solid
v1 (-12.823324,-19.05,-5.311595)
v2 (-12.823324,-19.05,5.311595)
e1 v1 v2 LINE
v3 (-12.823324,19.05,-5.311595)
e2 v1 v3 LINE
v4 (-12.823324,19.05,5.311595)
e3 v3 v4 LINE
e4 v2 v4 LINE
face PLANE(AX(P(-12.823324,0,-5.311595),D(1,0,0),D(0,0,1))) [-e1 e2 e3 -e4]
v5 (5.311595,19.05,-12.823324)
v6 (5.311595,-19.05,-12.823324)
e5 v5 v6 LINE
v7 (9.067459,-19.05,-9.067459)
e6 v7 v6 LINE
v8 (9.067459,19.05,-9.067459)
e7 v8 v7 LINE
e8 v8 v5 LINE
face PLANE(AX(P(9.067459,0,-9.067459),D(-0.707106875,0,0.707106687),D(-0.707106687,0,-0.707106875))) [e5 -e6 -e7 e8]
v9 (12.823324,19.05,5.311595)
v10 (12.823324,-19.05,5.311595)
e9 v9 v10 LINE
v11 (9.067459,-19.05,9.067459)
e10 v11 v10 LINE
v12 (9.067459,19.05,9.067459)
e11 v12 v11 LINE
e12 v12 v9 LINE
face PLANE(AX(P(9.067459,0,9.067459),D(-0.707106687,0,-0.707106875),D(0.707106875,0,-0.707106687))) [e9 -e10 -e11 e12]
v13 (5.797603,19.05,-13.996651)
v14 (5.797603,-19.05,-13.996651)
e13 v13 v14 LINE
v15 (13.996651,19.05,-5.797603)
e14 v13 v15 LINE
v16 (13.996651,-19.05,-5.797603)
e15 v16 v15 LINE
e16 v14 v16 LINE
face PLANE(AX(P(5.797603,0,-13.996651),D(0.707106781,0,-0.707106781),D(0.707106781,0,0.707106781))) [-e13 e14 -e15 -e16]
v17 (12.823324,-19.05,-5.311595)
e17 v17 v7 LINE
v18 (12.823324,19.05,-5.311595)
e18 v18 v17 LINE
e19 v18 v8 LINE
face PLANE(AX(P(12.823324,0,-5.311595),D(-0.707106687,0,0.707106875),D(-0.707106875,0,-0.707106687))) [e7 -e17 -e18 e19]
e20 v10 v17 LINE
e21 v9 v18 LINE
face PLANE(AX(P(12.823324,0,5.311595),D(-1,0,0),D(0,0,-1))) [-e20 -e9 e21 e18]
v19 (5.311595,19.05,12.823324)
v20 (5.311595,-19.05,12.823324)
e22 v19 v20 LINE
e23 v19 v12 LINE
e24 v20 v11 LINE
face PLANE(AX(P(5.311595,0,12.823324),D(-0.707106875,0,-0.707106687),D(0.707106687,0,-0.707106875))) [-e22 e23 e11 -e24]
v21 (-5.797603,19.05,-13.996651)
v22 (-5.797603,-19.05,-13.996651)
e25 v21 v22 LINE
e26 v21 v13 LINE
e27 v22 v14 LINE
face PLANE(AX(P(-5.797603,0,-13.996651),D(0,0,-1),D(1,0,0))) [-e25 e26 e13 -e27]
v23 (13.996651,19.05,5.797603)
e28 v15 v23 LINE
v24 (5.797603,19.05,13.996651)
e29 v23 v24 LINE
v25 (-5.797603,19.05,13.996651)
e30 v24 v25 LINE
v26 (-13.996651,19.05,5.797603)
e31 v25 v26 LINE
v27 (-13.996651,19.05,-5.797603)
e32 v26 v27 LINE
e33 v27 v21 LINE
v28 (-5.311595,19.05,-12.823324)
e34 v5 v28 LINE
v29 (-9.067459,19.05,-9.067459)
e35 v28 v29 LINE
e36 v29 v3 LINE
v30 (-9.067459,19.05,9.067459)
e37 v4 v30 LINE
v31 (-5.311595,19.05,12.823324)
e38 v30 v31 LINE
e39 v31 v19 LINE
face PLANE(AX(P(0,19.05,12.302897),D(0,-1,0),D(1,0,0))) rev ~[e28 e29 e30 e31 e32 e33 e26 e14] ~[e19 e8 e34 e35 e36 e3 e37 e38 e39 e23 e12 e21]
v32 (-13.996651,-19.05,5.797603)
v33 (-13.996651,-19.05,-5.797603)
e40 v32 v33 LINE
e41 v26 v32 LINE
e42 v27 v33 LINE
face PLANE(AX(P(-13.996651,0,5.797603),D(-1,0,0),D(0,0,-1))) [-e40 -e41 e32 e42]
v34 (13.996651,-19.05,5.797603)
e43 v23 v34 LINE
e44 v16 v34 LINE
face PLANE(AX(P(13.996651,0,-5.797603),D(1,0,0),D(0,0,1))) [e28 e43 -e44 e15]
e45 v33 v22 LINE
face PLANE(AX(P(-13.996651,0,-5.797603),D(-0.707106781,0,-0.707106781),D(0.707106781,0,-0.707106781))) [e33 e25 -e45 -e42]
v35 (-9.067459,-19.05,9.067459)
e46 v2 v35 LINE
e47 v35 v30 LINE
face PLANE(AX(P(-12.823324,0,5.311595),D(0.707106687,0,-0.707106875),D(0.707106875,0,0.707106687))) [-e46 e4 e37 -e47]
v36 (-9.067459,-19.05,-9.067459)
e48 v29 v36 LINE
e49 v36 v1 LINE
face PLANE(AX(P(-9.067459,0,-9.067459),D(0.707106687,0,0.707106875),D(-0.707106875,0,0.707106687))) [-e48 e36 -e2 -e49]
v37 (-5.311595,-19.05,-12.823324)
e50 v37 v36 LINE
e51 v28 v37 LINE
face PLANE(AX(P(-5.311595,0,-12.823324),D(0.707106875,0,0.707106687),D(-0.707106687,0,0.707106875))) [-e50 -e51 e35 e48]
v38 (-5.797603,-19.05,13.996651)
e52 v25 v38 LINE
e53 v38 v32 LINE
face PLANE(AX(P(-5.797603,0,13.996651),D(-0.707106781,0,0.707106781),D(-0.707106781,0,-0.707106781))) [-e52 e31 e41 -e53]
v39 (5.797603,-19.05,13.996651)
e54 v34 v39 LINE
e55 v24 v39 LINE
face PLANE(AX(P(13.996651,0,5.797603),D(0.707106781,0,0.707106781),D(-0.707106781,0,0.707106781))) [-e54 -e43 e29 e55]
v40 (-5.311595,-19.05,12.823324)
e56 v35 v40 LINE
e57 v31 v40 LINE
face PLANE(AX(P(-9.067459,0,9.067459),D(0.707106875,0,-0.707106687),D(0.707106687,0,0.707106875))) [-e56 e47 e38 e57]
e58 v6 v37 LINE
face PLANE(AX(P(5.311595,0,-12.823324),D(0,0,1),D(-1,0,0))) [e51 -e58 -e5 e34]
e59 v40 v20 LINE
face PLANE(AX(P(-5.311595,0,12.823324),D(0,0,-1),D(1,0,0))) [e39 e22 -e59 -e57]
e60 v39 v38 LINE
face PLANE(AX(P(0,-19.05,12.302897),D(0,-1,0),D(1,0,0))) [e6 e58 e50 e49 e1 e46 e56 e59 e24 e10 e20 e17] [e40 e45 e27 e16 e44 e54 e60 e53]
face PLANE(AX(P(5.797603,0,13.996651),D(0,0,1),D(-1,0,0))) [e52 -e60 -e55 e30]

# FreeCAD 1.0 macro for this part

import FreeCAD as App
import Part
import Sketcher

V = App.Vector

doc = App.newDocument("Part")
params = doc.addObject("Spreadsheet::Sheet", "Params")
for row, (alias, value) in enumerate([
    ("pad1_length", "1.5 in"),
], start=1):
    params.set(f"A{row}", alias)
    params.set(f"B{row}", "=" + value)
    params.setAlias(f"B{row}", alias)

body = doc.addObject("PartDesign::Body", "Body")

# Sketch on XZ plane
sketch1 = body.newObject("Sketcher::SketchObject", "Sketch")
sketch1.AttachmentSupport = (doc.getObject("XZ_Plane"), [""])
sketch1.MapMode = "FlatFace"
sketch1.addGeometry([
    Part.LineSegment(V(13.996651, -5.797603, 0), V(13.996651, 5.797603, 0)),  # 0
    Part.LineSegment(V(13.996651, 5.797603, 0), V(5.797603, 13.996651, 0)),  # 1
    Part.LineSegment(V(5.797603, 13.996651, 0), V(-5.797603, 13.996651, 0)),  # 2
    Part.LineSegment(V(-5.797603, 13.996651, 0), V(-13.996651, 5.797603, 0)),  # 3
    Part.LineSegment(V(-13.996651, 5.797603, 0), V(-13.996651, -5.797603, 0)),  # 4
    Part.LineSegment(V(-13.996651, -5.797603, 0), V(-5.797603, -13.996651, 0)),  # 5
    Part.LineSegment(V(-5.797603, -13.996651, 0), V(5.797603, -13.996651, 0)),  # 6
    Part.LineSegment(V(5.797603, -13.996651, 0), V(13.996651, -5.797603, 0)),  # 7
    Part.LineSegment(V(-9.067459, 9.067459, 0), V(-5.311595, 12.823324, 0)),  # 8
    Part.LineSegment(V(-5.311595, 12.823324, 0), V(5.311595, 12.823324, 0)),  # 9
    Part.LineSegment(V(5.311595, 12.823324, 0), V(9.067459, 9.067459, 0)),  # 10
    Part.LineSegment(V(9.067459, 9.067459, 0), V(12.823324, 5.311595, 0)),  # 11
    Part.LineSegment(V(12.823324, 5.311595, 0), V(12.823324, -5.311595, 0)),  # 12
    Part.LineSegment(V(12.823324, -5.311595, 0), V(9.067459, -9.067459, 0)),  # 13
    Part.LineSegment(V(9.067459, -9.067459, 0), V(5.311595, -12.823324, 0)),  # 14
    Part.LineSegment(V(5.311595, -12.823324, 0), V(-5.311595, -12.823324, 0)),  # 15
    Part.LineSegment(V(-5.311595, -12.823324, 0), V(-9.067459, -9.067459, 0)),  # 16
    Part.LineSegment(V(-9.067459, -9.067459, 0), V(-12.823324, -5.311595, 0)),  # 17
    Part.LineSegment(V(-12.823324, -5.311595, 0), V(-12.823324, 5.311595, 0)),  # 18
    Part.LineSegment(V(-12.823324, 5.311595, 0), V(-9.067459, 9.067459, 0)),  # 19
], False)
sketch1.addConstraint([
    Sketcher.Constraint("Coincident", 0, 2, 1, 1),
    Sketcher.Constraint("Coincident", 1, 2, 2, 1),
    Sketcher.Constraint("Coincident", 2, 2, 3, 1),
    Sketcher.Constraint("Coincident", 3, 2, 4, 1),
    Sketcher.Constraint("Coincident", 4, 2, 5, 1),
    Sketcher.Constraint("Coincident", 5, 2, 6, 1),
    Sketcher.Constraint("Coincident", 6, 2, 7, 1),
    Sketcher.Constraint("Coincident", 7, 2, 0, 1),
    Sketcher.Constraint("Coincident", 8, 2, 9, 1),
    Sketcher.Constraint("Coincident", 9, 2, 10, 1),
    Sketcher.Constraint("Coincident", 10, 2, 11, 1),
    Sketcher.Constraint("Coincident", 11, 2, 12, 1),
    Sketcher.Constraint("Coincident", 12, 2, 13, 1),
    Sketcher.Constraint("Coincident", 13, 2, 14, 1),
    Sketcher.Constraint("Coincident", 14, 2, 15, 1),
    Sketcher.Constraint("Coincident", 15, 2, 16, 1),
    Sketcher.Constraint("Coincident", 16, 2, 17, 1),
    Sketcher.Constraint("Coincident", 17, 2, 18, 1),
    Sketcher.Constraint("Coincident", 18, 2, 19, 1),
    Sketcher.Constraint("Coincident", 19, 2, 8, 1),
    Sketcher.Constraint("Vertical", 0),
    Sketcher.Constraint("Horizontal", 2),
    Sketcher.Constraint("Vertical", 4),
    Sketcher.Constraint("Horizontal", 6),
    Sketcher.Constraint("Horizontal", 9),
    Sketcher.Constraint("Vertical", 12),
    Sketcher.Constraint("Horizontal", 15),
    Sketcher.Constraint("Vertical", 18),
    Sketcher.Constraint("Symmetric", 0, 2, 4, 2, -1, 1),
    Sketcher.Constraint("Symmetric", 1, 2, 5, 2, -1, 1),
    Sketcher.Constraint("Symmetric", 8, 2, 14, 2, -1, 1),
    Sketcher.Constraint("Symmetric", 10, 2, 16, 2, -1, 1),
    Sketcher.Constraint("Symmetric", 11, 2, 17, 2, -1, 1),
    Sketcher.Constraint("Symmetric", 13, 2, 19, 2, -1, 1),
    Sketcher.Constraint("Symmetric", 13, 2, 16, 2, -2),
    Sketcher.Constraint("Perpendicular", 1, 3),
    Sketcher.Constraint("Perpendicular", 5, 7),
    Sketcher.Constraint("Parallel", 7, 8),
    Sketcher.Constraint("Perpendicular", 8, 10),
    Sketcher.Constraint("Parallel", 10, 11),
    Sketcher.Constraint("Perpendicular", 11, 13),
    Sketcher.Constraint("Perpendicular", 14, 16),
    Sketcher.Constraint("Perpendicular", 17, 19),
    Sketcher.Constraint("Horizontal", 0, 2, 3, 2),
    Sketcher.Constraint("Horizontal", 4, 2, 7, 2),
    Sketcher.Constraint("Horizontal", 12, 2, 17, 2),
    Sketcher.Constraint("Equal", 6, 0),
    Sketcher.Constraint("Equal", 15, 12),
    Sketcher.Constraint("Equal", 10, 11),
    Sketcher.Constraint("DistanceX", 9, 1, 9, 2, 10.62319),
    Sketcher.Constraint("DistanceX", 3, 2, 0, 2, 27.993302),
    Sketcher.Constraint("DistanceX", 2, 2, 2, 1, 11.595206),
    Sketcher.Constraint("DistanceX", -1, 1, 10, 2, 9.067459),
])
pad1 = body.newObject("PartDesign::Pad", "Pad")
pad1.Profile = sketch1
pad1.setExpression("Length", "Params.pad1_length")
pad1.Midplane = True

doc.recompute()
